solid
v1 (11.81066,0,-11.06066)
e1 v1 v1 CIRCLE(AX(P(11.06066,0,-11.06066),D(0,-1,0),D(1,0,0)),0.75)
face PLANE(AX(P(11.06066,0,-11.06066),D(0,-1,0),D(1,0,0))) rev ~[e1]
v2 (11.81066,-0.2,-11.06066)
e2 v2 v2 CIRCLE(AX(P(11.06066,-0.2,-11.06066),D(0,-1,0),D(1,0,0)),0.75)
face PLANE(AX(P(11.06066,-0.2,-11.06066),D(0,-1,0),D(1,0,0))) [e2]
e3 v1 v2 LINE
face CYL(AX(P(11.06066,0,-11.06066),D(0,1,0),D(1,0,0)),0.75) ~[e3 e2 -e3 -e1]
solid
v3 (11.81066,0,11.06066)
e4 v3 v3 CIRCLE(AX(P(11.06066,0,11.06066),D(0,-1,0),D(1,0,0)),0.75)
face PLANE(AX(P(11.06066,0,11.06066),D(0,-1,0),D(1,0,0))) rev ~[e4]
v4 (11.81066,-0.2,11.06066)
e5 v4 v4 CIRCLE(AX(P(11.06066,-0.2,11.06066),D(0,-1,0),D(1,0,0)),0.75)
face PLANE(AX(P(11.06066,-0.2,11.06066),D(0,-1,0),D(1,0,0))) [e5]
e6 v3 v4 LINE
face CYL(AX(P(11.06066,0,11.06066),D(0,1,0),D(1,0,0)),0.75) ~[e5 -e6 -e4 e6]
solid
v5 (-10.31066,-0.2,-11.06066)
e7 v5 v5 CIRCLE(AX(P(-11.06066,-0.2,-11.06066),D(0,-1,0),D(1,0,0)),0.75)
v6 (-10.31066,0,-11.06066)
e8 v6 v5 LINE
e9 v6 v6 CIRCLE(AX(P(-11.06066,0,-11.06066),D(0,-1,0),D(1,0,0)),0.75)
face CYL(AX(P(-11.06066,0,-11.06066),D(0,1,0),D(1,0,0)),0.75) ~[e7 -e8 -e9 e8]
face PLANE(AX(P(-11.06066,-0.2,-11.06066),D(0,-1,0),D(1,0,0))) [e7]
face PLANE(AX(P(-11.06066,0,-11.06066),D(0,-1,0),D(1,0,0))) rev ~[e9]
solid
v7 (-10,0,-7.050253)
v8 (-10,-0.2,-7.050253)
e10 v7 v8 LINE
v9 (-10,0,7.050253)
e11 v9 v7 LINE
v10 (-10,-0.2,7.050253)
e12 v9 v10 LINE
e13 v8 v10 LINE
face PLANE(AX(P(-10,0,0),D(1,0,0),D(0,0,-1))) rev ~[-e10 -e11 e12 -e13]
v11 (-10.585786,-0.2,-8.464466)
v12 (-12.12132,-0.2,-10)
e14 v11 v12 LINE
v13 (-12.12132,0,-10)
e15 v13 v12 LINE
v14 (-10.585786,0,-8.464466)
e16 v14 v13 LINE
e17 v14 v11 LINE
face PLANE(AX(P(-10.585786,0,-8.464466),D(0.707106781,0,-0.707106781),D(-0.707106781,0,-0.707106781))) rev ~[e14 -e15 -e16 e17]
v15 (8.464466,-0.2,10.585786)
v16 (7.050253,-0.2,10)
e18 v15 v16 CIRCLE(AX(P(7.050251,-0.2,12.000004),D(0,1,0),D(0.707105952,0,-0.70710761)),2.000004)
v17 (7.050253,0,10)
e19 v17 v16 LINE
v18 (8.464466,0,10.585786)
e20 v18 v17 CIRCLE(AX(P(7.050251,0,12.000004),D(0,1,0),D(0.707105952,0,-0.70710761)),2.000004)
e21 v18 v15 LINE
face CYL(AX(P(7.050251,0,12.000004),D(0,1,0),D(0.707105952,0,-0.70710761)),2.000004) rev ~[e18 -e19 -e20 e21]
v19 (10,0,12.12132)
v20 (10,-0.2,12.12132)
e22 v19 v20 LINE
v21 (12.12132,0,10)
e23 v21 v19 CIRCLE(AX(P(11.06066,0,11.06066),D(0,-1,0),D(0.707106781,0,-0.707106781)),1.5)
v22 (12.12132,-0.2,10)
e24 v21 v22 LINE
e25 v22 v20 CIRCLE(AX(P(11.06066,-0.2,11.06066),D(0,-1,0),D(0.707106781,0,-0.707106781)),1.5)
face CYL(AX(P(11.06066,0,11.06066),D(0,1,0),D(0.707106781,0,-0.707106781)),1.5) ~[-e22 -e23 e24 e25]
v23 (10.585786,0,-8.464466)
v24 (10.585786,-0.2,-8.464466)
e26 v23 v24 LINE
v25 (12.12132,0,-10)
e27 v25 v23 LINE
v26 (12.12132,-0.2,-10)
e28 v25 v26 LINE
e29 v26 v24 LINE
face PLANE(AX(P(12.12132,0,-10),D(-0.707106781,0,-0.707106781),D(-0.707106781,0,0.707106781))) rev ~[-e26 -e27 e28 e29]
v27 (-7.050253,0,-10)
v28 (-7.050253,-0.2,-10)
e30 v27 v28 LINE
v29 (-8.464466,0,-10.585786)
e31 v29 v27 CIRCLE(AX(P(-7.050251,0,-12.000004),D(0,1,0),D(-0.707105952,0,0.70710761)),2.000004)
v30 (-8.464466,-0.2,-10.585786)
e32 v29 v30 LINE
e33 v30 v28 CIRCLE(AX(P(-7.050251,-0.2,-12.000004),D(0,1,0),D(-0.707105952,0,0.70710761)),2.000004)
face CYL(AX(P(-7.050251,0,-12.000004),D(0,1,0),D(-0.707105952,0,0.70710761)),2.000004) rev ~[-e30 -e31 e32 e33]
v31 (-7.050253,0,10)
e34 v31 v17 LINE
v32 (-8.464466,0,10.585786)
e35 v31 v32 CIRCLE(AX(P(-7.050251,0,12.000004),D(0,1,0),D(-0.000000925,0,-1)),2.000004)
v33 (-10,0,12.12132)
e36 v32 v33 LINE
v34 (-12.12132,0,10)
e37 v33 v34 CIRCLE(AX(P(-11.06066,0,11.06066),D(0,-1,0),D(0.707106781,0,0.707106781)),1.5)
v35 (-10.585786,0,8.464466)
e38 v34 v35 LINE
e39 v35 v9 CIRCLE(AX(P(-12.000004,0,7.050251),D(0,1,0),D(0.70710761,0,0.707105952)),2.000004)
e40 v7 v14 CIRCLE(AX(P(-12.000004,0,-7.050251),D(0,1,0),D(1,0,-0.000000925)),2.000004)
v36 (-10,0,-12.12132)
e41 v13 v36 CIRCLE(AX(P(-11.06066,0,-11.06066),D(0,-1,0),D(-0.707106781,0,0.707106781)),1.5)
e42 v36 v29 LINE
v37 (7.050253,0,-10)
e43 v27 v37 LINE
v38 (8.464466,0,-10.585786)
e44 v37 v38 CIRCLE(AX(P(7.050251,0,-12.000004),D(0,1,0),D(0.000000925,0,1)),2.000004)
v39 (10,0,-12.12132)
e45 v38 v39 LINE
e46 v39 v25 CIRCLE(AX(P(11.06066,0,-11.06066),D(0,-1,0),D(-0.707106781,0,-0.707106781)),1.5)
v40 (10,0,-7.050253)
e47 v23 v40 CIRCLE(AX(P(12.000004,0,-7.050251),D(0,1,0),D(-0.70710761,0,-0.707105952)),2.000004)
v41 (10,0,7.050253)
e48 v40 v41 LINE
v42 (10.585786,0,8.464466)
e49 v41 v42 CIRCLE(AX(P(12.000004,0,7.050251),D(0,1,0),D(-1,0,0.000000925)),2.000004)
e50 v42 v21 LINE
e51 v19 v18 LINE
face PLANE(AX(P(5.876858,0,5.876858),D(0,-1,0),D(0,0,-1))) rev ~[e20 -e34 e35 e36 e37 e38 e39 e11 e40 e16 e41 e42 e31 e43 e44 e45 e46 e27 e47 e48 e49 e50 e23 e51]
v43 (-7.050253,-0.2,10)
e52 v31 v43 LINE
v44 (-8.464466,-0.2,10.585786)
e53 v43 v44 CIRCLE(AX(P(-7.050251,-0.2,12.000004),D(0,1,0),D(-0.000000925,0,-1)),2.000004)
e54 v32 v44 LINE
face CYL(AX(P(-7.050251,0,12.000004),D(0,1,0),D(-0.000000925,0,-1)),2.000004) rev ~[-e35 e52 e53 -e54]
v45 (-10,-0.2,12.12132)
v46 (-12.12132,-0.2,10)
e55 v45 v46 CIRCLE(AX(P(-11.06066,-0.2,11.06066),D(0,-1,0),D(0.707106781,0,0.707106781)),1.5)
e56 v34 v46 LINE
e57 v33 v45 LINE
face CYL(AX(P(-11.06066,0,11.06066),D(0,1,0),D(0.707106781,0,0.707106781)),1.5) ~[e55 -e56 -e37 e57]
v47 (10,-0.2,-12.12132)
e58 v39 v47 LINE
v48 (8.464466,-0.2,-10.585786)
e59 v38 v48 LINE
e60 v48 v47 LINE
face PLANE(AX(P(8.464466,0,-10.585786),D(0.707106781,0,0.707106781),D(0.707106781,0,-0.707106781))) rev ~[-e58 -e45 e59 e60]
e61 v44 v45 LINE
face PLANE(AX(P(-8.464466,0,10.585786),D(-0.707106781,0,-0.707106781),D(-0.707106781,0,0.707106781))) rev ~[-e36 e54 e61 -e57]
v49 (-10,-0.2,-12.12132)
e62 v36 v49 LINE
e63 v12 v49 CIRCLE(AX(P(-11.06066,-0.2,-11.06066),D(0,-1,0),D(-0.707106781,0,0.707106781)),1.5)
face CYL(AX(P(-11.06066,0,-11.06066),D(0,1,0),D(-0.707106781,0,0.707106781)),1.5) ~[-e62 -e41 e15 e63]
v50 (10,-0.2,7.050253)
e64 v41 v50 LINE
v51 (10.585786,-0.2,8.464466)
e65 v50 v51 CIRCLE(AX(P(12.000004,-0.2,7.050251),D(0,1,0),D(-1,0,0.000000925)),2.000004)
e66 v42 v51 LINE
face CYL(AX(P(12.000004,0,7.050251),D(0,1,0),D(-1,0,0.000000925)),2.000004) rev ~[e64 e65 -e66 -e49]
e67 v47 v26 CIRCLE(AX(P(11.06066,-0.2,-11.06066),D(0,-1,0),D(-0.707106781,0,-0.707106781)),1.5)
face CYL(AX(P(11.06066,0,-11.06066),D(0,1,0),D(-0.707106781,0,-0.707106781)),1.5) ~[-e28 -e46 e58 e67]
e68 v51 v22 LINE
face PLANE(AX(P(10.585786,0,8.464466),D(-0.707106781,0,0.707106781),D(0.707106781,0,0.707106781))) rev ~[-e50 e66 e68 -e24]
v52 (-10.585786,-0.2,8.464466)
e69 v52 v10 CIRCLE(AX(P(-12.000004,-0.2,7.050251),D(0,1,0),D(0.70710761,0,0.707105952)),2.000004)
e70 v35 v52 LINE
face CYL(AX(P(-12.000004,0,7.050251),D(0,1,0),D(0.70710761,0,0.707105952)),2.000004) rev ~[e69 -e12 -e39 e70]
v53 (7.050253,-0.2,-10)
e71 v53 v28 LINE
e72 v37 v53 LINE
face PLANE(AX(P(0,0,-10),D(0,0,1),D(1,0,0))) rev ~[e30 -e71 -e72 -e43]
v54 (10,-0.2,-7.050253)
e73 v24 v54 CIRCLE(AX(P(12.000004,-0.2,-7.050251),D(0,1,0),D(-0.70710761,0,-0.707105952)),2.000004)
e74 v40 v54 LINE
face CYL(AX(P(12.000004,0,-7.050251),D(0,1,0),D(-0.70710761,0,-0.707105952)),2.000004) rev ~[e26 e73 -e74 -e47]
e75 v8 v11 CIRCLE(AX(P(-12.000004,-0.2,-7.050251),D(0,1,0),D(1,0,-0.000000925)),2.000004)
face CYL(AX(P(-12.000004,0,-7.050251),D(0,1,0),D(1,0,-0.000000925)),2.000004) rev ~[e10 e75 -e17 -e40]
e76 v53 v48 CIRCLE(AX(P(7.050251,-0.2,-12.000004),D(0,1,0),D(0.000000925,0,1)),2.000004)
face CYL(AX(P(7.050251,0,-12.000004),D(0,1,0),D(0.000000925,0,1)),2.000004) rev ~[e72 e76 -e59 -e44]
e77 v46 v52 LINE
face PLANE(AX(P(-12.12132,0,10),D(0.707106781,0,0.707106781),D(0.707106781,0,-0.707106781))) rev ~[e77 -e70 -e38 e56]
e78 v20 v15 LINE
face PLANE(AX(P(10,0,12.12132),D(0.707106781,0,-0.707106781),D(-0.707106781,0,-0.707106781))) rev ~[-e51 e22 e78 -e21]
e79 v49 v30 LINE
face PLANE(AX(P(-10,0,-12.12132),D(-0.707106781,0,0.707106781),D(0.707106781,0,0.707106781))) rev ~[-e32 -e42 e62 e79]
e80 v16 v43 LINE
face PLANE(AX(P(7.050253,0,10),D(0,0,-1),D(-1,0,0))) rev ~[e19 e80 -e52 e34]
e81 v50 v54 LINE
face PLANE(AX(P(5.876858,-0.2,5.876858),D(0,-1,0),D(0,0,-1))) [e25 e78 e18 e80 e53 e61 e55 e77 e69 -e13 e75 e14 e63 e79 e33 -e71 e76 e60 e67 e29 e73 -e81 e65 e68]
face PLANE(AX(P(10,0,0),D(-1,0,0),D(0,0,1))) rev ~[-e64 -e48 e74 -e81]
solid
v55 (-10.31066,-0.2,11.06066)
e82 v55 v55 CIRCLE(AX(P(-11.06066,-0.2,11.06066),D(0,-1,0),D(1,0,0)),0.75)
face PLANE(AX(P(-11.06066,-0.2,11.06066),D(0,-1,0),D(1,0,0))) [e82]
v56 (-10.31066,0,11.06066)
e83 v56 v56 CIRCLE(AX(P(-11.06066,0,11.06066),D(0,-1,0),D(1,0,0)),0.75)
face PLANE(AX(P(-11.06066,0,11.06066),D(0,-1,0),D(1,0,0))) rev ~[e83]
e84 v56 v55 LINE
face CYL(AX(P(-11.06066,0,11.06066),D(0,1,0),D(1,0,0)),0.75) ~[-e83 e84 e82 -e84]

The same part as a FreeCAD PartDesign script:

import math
import FreeCAD as App
import Part
import Sketcher

V = App.Vector

doc = App.newDocument("Part")
body = doc.addObject("PartDesign::Body", "Body")

sketch1 = body.newObject("Sketcher::SketchObject", "Sketch")
sketch1.AttachmentSupport = (doc.getObject("XZ_Plane"), [""])
sketch1.MapMode = "FlatFace"
sketch1.addGeometry([
    Part.LineSegment(V(0, 0, 0), V(0, 10, 0)),
    Part.LineSegment(V(0, 10, 0), V(-7.1, 10, 0)),
    Part.ArcOfCircle(Part.Circle(V(-7.1, 12, 0), V(0, 0, 1), 2), math.radians(-135), math.radians(-90)),
    Part.LineSegment(V(-8.5, 10.6, 0), V(-10, 12.1, 0)),
    Part.ArcOfCircle(Part.Circle(V(-11.1, 11.1, 0), V(0, 0, 1), 1.5), math.radians(45), math.radians(225)),
    Part.LineSegment(V(-12.1, 10, 0), V(-10.6, 8.5, 0)),
    Part.ArcOfCircle(Part.Circle(V(-12, 7.1, 0), V(0, 0, 1), 2), math.radians(0), math.radians(45)),
    Part.LineSegment(V(-10, 7.1, 0), V(-10, 0, 0)),
    Part.LineSegment(V(-10, 0, 0), V(0, 0, 0)),
], False)
sketch1.addConstraint([
    Sketcher.Constraint("Coincident", 0, 2, 1, 1),
    Sketcher.Constraint("Tangent", 1, 2, 2, 2),
    Sketcher.Constraint("Tangent", 2, 1, 3, 1),
    Sketcher.Constraint("Tangent", 3, 2, 4, 1),
    Sketcher.Constraint("Tangent", 4, 2, 5, 1),
    Sketcher.Constraint("Tangent", 5, 2, 6, 2),
    Sketcher.Constraint("Tangent", 6, 1, 7, 1),
    Sketcher.Constraint("Coincident", 7, 2, 8, 1),
    Sketcher.Constraint("Coincident", 8, 2, 0, 1),
    Sketcher.Constraint("Vertical", 0),
    Sketcher.Constraint("Horizontal", 1),
    Sketcher.Constraint("Vertical", 7),
    Sketcher.Constraint("Horizontal", 8),
    Sketcher.Constraint("Coincident", 8, 2, -1, 1),
    Sketcher.Constraint("Equal", 2, 6),
    Sketcher.Constraint("Parallel", 3, 5),
    Sketcher.Constraint("Horizontal", 1, 2, 4, 2),
    Sketcher.Constraint("Vertical", 3, 2, 6, 1),
    Sketcher.Constraint("Equal", 8, 0),
    Sketcher.Constraint("Equal", 1, 7),
    Sketcher.Constraint("Radius", 4, 1.5),
    Sketcher.Constraint("DistanceX", 8, 1, 8, 2, 10.0),
    Sketcher.Constraint("Radius", 2, 2.000004),
])
pad1 = body.newObject("PartDesign::Pad", "Pad")
pad1.Profile = sketch1
pad1.Length = 0.2
body2 = doc.addObject("PartDesign::Body", "Body001")
doc.recompute()

body2.BaseFeature = body
doc.recompute()

body3 = doc.addObject("PartDesign::Body", "Body002")
body3.BaseFeature = body
body3.Placement = App.Placement(V(0, 0, 0), App.Rotation(V(0, -1, 0), 90))
boolean = body2.newObject("PartDesign::Boolean", "Boolean")
boolean.Type = "Fuse"
boolean.addObjects([body3])
doc.recompute()

body4 = doc.addObject("PartDesign::Body", "Body003")
body4.BaseFeature = body
body4.Placement = App.Placement(V(0, 0, 0), App.Rotation(V(0, -1, 0), 180))
boolean2 = body2.newObject("PartDesign::Boolean", "Boolean001")
boolean2.Type = "Fuse"
boolean2.addObjects([body4])
doc.recompute()

body.Placement = App.Placement(V(0, 0, 0), App.Rotation(V(0, -1, 0), 270))
boolean3 = body2.newObject("PartDesign::Boolean", "Boolean002")
boolean3.Type = "Fuse"
boolean3.addObjects([body])
body5 = doc.addObject("PartDesign::Body", "Body004")
body5.AllowCompound = True

sketch2 = body5.newObject("Sketcher::SketchObject", "Sketch001")
sketch2.AttachmentSupport = (doc.getObject("XZ_Plane004"), [""])
sketch2.MapMode = "FlatFace"
sketch2.addGeometry([
    Part.Circle(V(-11.1, -11.1, 0), V(0, 0, 1), 0.8),
    Part.Circle(V(11.1, -11.1, 0), V(0, 0, 1), 0.8),
    Part.Circle(V(11.1, 11.1, 0), V(0, 0, 1), 0.8),
    Part.Circle(V(-11.1, 11.1, 0), V(0, 0, 1), 0.8),
], False)
sketch2.addConstraint([
    Sketcher.Constraint("Equal", 0, 1),
    Sketcher.Constraint("Equal", 1, 2),
    Sketcher.Constraint("Equal", 2, 3),
    Sketcher.Constraint("Symmetric", 0, 3, 2, 3, -1, 1),
    Sketcher.Constraint("Symmetric", 1, 3, 3, 3, -1, 1),
    Sketcher.Constraint("Symmetric", 0, 3, 1, 3, -2),
    Sketcher.Constraint("Diameter", 0, 1.5),
    Sketcher.Constraint("DistanceX", 0, 3, -1, 1, 11.06066),
    Sketcher.Constraint("DistanceY", 0, 3, -1, 1, 11.06066),
])
pad2 = body5.newObject("PartDesign::Pad", "Pad001")
pad2.Profile = sketch2
pad2.Length = 0.2

doc.recompute()
